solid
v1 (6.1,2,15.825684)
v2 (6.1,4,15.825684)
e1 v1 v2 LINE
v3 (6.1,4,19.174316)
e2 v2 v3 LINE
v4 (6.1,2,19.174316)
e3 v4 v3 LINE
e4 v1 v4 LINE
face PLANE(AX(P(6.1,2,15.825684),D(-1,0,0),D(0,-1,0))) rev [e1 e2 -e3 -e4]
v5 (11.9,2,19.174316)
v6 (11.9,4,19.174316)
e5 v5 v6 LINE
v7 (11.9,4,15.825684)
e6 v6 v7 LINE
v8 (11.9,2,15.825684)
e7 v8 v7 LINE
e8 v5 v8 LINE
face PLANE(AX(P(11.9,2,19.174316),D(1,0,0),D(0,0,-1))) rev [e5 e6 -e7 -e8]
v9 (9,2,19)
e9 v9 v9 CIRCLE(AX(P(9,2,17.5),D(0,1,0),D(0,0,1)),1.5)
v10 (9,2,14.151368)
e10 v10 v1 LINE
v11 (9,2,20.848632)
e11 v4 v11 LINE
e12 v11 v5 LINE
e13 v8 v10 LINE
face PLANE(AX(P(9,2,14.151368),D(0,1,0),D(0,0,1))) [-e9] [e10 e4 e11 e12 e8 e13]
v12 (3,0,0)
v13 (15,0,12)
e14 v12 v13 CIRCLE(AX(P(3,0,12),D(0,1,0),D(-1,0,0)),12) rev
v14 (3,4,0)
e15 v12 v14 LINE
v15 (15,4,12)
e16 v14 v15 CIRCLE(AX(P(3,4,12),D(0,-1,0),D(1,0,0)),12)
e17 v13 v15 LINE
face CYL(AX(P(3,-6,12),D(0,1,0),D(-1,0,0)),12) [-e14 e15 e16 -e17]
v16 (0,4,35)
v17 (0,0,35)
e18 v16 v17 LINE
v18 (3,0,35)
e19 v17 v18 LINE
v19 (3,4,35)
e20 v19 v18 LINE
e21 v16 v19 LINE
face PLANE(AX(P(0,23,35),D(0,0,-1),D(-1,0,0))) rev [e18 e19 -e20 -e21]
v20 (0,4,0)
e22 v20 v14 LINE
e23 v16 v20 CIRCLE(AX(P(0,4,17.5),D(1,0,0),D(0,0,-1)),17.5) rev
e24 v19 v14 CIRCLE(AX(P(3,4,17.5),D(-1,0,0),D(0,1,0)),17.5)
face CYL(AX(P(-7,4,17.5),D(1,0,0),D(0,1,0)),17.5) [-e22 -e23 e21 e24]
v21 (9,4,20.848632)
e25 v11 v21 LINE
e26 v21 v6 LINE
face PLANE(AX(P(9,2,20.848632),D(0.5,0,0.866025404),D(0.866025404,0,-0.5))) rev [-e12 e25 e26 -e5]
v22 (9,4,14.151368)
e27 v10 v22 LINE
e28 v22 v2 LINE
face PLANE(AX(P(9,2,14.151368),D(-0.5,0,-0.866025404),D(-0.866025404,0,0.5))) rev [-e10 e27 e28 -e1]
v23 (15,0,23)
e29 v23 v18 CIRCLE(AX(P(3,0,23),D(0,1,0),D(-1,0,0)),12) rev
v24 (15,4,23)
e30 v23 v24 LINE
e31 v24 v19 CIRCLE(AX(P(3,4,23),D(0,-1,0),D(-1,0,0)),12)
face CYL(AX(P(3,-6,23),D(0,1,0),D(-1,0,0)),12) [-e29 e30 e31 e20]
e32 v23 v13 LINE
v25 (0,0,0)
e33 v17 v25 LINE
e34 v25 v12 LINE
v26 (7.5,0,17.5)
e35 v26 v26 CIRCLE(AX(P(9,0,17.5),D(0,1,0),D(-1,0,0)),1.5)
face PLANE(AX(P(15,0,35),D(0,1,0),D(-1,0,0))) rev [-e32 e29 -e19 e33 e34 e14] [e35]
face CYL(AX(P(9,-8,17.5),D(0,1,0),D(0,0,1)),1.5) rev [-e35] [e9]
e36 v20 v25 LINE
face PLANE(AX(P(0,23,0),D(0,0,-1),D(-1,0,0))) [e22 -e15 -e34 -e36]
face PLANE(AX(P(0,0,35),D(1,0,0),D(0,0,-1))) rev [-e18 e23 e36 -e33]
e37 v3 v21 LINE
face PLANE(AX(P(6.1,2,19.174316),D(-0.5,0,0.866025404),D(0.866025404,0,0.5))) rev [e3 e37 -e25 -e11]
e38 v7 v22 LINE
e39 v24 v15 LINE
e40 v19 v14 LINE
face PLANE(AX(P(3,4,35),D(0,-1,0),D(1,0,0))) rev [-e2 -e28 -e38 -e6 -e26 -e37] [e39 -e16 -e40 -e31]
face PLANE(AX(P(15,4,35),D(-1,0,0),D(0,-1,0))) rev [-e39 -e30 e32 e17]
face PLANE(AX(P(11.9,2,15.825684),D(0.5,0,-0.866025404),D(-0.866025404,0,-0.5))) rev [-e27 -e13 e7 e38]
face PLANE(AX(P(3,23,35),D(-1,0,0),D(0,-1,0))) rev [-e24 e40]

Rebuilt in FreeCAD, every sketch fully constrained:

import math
import FreeCAD as App
import Part
import Sketcher
Q = App.Units.Quantity

doc = App.newDocument("Part")
body = doc.addObject("PartDesign::Body", "Body")

sketch1 = doc.addObject("Sketcher::SketchObject", "Sketch")
body.addObject(sketch1)
sketch1.AttachmentSupport = (doc.XY_Plane, [""])
sketch1.MapMode = "FlatFace"
sketch1.addGeometry(Part.LineSegment(App.Vector(3, 23, 0), App.Vector(0, 23, 0)), False)
sketch1.addGeometry(Part.LineSegment(App.Vector(0, 23, 0), App.Vector(0, 0, 0)), False)
sketch1.addGeometry(Part.LineSegment(App.Vector(0, 0, 0), App.Vector(15, 0, 0)), False)
sketch1.addGeometry(Part.LineSegment(App.Vector(15, 0, 0), App.Vector(15, 4, 0)), False)
sketch1.addGeometry(Part.LineSegment(App.Vector(15, 4, 0), App.Vector(3, 4, 0)), False)
sketch1.addGeometry(Part.LineSegment(App.Vector(3, 4, 0), App.Vector(3, 23, 0)), False)
sketch1.addConstraint(Sketcher.Constraint("Coincident", 0, 2, 1, 1))
sketch1.addConstraint(Sketcher.Constraint("Coincident", 1, 2, 2, 1))
sketch1.addConstraint(Sketcher.Constraint("Coincident", 2, 2, 3, 1))
sketch1.addConstraint(Sketcher.Constraint("Coincident", 3, 2, 4, 1))
sketch1.addConstraint(Sketcher.Constraint("Coincident", 4, 2, 5, 1))
sketch1.addConstraint(Sketcher.Constraint("Coincident", 5, 2, 0, 1))
sketch1.addConstraint(Sketcher.Constraint("Horizontal", 0))
sketch1.addConstraint(Sketcher.Constraint("Vertical", 1))
sketch1.addConstraint(Sketcher.Constraint("Horizontal", 2))
sketch1.addConstraint(Sketcher.Constraint("Vertical", 3))
sketch1.addConstraint(Sketcher.Constraint("Horizontal", 4))
sketch1.addConstraint(Sketcher.Constraint("Vertical", 5))
sketch1.addConstraint(Sketcher.Constraint("Coincident", 1, 2, -1, 1))
sketch1.addConstraint(Sketcher.Constraint("DistanceX", 0, 2, 0, 1, 3.0))
sketch1.addConstraint(Sketcher.Constraint("DistanceX", 2, 1, 2, 2, 15.0))
sketch1.addConstraint(Sketcher.Constraint("DistanceY", 1, 2, 1, 1, 23.0))
sketch1.addConstraint(Sketcher.Constraint("DistanceY", 3, 1, 3, 2, 4.0))
pad1 = doc.addObject("PartDesign::Pad", "Pad")
body.addObject(pad1)
pad1.Profile = sketch1
pad1.Length = 35

sketch2 = doc.addObject("Sketcher::SketchObject", "Sketch001")
body.addObject(sketch2)
sketch2.AttachmentSupport = (doc.XZ_Plane, [""])
sketch2.MapMode = "FlatFace"
sketch2.AttachmentOffset = App.Placement(App.Vector(0, 0, -4), App.Rotation())
sketch2.addGeometry(Part.LineSegment(App.Vector(9, 14.2, 0), App.Vector(6.1, 15.8, 0)), False)
sketch2.addGeometry(Part.LineSegment(App.Vector(6.1, 15.8, 0), App.Vector(6.1, 19.2, 0)), False)
sketch2.addGeometry(Part.LineSegment(App.Vector(6.1, 19.2, 0), App.Vector(9, 20.8, 0)), False)
sketch2.addGeometry(Part.LineSegment(App.Vector(9, 20.8, 0), App.Vector(11.9, 19.2, 0)), False)
sketch2.addGeometry(Part.LineSegment(App.Vector(11.9, 19.2, 0), App.Vector(11.9, 15.8, 0)), False)
sketch2.addGeometry(Part.LineSegment(App.Vector(11.9, 15.8, 0), App.Vector(9, 14.2, 0)), False)
sketch2.addConstraint(Sketcher.Constraint("Coincident", 0, 2, 1, 1))
sketch2.addConstraint(Sketcher.Constraint("Coincident", 1, 2, 2, 1))
sketch2.addConstraint(Sketcher.Constraint("Coincident", 2, 2, 3, 1))
sketch2.addConstraint(Sketcher.Constraint("Coincident", 3, 2, 4, 1))
sketch2.addConstraint(Sketcher.Constraint("Coincident", 4, 2, 5, 1))
sketch2.addConstraint(Sketcher.Constraint("Coincident", 5, 2, 0, 1))
sketch2.addConstraint(Sketcher.Constraint("Vertical", 1))
sketch2.addConstraint(Sketcher.Constraint("Vertical", 4))
sketch2.addConstraint(Sketcher.Constraint("Parallel", 0, 3))
sketch2.addConstraint(Sketcher.Constraint("Parallel", 2, 5))
sketch2.addConstraint(Sketcher.Constraint("Horizontal", 1, 2, 3, 2))
sketch2.addConstraint(Sketcher.Constraint("Horizontal", 0, 2, 4, 2))
sketch2.addConstraint(Sketcher.Constraint("Vertical", 2, 2, 5, 2))
sketch2.addConstraint(Sketcher.Constraint("Angle", 0, Q("150 deg")))
sketch2.addConstraint(Sketcher.Constraint("DistanceX", -1, 1, 2, 2, 9.0))
sketch2.addConstraint(Sketcher.Constraint("DistanceX", -1, 1, 0, 2, 6.1))
sketch2.addConstraint(Sketcher.Constraint("DistanceY", 1, 1, 1, 2, 3.348632))
sketch2.addConstraint(Sketcher.Constraint("DistanceY", -1, 1, 2, 2, 20.848632))
pocket1 = doc.addObject("PartDesign::Pocket", "Pocket")
body.addObject(pocket1)
pocket1.Profile = sketch2
pocket1.Length = 2
pocket1.Reversed = True

sketch3 = doc.addObject("Sketcher::SketchObject", "Sketch002")
body.addObject(sketch3)
sketch3.AttachmentSupport = (doc.XZ_Plane, [""])
sketch3.MapMode = "FlatFace"
sketch3.AttachmentOffset = App.Placement(App.Vector(0, 0, -2), App.Rotation())
sketch3.addGeometry(Part.Circle(App.Vector(9, 17.5, 0), App.Vector(0, 0, 1), 1.5), False)
sketch3.addConstraint(Sketcher.Constraint("Diameter", 0, 3.0))
sketch3.addConstraint(Sketcher.Constraint("DistanceX", -1, 1, 0, 3, 9.0))
sketch3.addConstraint(Sketcher.Constraint("DistanceY", -1, 1, 0, 3, 17.5))
pocket2 = doc.addObject("PartDesign::Pocket", "Pocket001")
body.addObject(pocket2)
pocket2.Profile = sketch3
pocket2.Length = 10
pocket2.Reversed = True

sketch4 = doc.addObject("Sketcher::SketchObject", "Sketch003")
body.addObject(sketch4)
sketch4.AttachmentSupport = (doc.XZ_Plane, [""])
sketch4.MapMode = "FlatFace"
sketch4.AttachmentOffset = App.Placement(App.Vector(0, 0, -4), App.Rotation())
sketch4.addGeometry(Part.LineSegment(App.Vector(15, 12, 0), App.Vector(15, 23, 0)), False)
sketch4.addGeometry(Part.ArcOfCircle(Part.Circle(App.Vector(3, 23, 0), App.Vector(0, 0, 1), 12), math.radians(0), math.radians(90)), False)
sketch4.addGeometry(Part.LineSegment(App.Vector(3, 35, 0), App.Vector(3, 39.9, 0)), False)
sketch4.addGeometry(Part.LineSegment(App.Vector(3, 39.9, 0), App.Vector(21.7, 36.8, 0)), False)
sketch4.addGeometry(Part.LineSegment(App.Vector(21.7, 36.8, 0), App.Vector(27.2, 6.9, 0)), False)
sketch4.addGeometry(Part.LineSegment(App.Vector(27.2, 6.9, 0), App.Vector(15.9, -7.8, 0)), False)
sketch4.addGeometry(Part.LineSegment(App.Vector(15.9, -7.8, 0), App.Vector(3, 0, 0)), False)
sketch4.addGeometry(Part.ArcOfCircle(Part.Circle(App.Vector(3, 12, 0), App.Vector(0, 0, 1), 12), math.radians(-90), math.radians(0)), False)
sketch4.addConstraint(Sketcher.Constraint("Tangent", 0, 2, 1, 1))
sketch4.addConstraint(Sketcher.Constraint("Coincident", 1, 2, 2, 1))
sketch4.addConstraint(Sketcher.Constraint("Coincident", 2, 2, 3, 1))
sketch4.addConstraint(Sketcher.Constraint("Coincident", 3, 2, 4, 1))
sketch4.addConstraint(Sketcher.Constraint("Coincident", 4, 2, 5, 1))
sketch4.addConstraint(Sketcher.Constraint("Coincident", 5, 2, 6, 1))
sketch4.addConstraint(Sketcher.Constraint("Coincident", 6, 2, 7, 1))
sketch4.addConstraint(Sketcher.Constraint("Tangent", 7, 2, 0, 1))
sketch4.addConstraint(Sketcher.Constraint("Vertical", 0))
sketch4.addConstraint(Sketcher.Constraint("Vertical", 2))
sketch4.addConstraint(Sketcher.Constraint("Equal", 1, 7))
sketch4.addConstraint(Sketcher.Constraint("PointOnObject", 6, 2, -1))
sketch4.addConstraint(Sketcher.Constraint("Vertical", 7, 3, 1, 2))
sketch4.addConstraint(Sketcher.Constraint("Vertical", 2, 2, 6, 2))
sketch4.addConstraint(Sketcher.Constraint("Radius", 1, 12.0))
sketch4.addConstraint(Sketcher.Constraint("DistanceY", 0, 1, 0, 2, 11.0))
sketch4.addConstraint(Sketcher.Constraint("DistanceX", -1, 1, 1, 3, 3.0))
sketch4.addConstraint(Sketcher.Constraint("DistanceY", 2, 1, 2, 2, 4.861701))
sketch4.addConstraint(Sketcher.Constraint("DistanceY", 3, 2, 2, 2, 3.013001))
sketch4.addConstraint(Sketcher.Constraint("DistanceX", -1, 1, 4, 2, 27.206798))
sketch4.addConstraint(Sketcher.Constraint("Distance", 3, 18.929638))
sketch4.addConstraint(Sketcher.Constraint("Distance", 4, 30.500265))
sketch4.addConstraint(Sketcher.Constraint("Distance", 5, 18.488574))
sketch4.addConstraint(Sketcher.Constraint("Distance", 6, 15.028264))
pocket3 = doc.addObject("PartDesign::Pocket", "Pocket002")
body.addObject(pocket3)
pocket3.Profile = sketch4
pocket3.Length = 10
pocket3.Reversed = True

sketch5 = doc.addObject("Sketcher::SketchObject", "Sketch004")
body.addObject(sketch5)
sketch5.AttachmentSupport = (doc.YZ_Plane, [""])
sketch5.MapMode = "FlatFace"
sketch5.AttachmentOffset = App.Placement(App.Vector(0, 0, 3), App.Rotation())
sketch5.addGeometry(Part.LineSegment(App.Vector(10.3, 43.5, 0), App.Vector(4, 35, 0)), False)
sketch5.addGeometry(Part.ArcOfCircle(Part.Circle(App.Vector(4, 17.5, 0), App.Vector(0, 0, 1), 17.5), math.radians(-90), math.radians(90)), False)
sketch5.addGeometry(Part.LineSegment(App.Vector(4, 0, 0), App.Vector(12, -6.4, 0)), False)
sketch5.addGeometry(Part.LineSegment(App.Vector(12, -6.4, 0), App.Vector(26.4, -8.8, 0)), False)
sketch5.addGeometry(Part.LineSegment(App.Vector(26.4, -8.8, 0), App.Vector(31.3, 37.3, 0)), False)
sketch5.addGeometry(Part.LineSegment(App.Vector(31.3, 37.3, 0), App.Vector(30.2, 37.6, 0)), False)
sketch5.addGeometry(Part.LineSegment(App.Vector(30.2, 37.6, 0), App.Vector(10.3, 43.5, 0)), False)
sketch5.addConstraint(Sketcher.Constraint("Coincident", 0, 2, 1, 2))
sketch5.addConstraint(Sketcher.Constraint("Coincident", 1, 1, 2, 1))
sketch5.addConstraint(Sketcher.Constraint("Coincident", 2, 2, 3, 1))
sketch5.addConstraint(Sketcher.Constraint("Coincident", 3, 2, 4, 1))
sketch5.addConstraint(Sketcher.Constraint("Coincident", 4, 2, 5, 1))
sketch5.addConstraint(Sketcher.Constraint("Coincident", 5, 2, 6, 1))
sketch5.addConstraint(Sketcher.Constraint("Coincident", 6, 2, 0, 1))
sketch5.addConstraint(Sketcher.Constraint("PointOnObject", 1, 1, -1))
sketch5.addConstraint(Sketcher.Constraint("Parallel", 5, 6))
sketch5.addConstraint(Sketcher.Constraint("Vertical", 1, 3, 0, 2))
sketch5.addConstraint(Sketcher.Constraint("Vertical", 0, 2, 1, 1))
sketch5.addConstraint(Sketcher.Constraint("Radius", 1, 17.5))
sketch5.addConstraint(Sketcher.Constraint("DistanceX", -1, 1, 1, 3, 4.0))
sketch5.addConstraint(Sketcher.Constraint("Distance", 2, 10.260149))
sketch5.addConstraint(Sketcher.Constraint("Distance", 6, 20.712331))
sketch5.addConstraint(Sketcher.Constraint("DistanceY", 2, 2, -1, 1, 6.381141))
sketch5.addConstraint(Sketcher.Constraint("DistanceX", -1, 1, 4, 2, 31.27068))
sketch5.addConstraint(Sketcher.Constraint("DistanceY", -1, 1, 4, 2, 37.331119))
sketch5.addConstraint(Sketcher.Constraint("DistanceX", -1, 1, 5, 2, 30.185339))
sketch5.addConstraint(Sketcher.Constraint("DistanceY", -1, 1, 5, 2, 37.648578))
sketch5.addConstraint(Sketcher.Constraint("DistanceX", 2, 2, 3, 2, 14.413419))
sketch5.addConstraint(Sketcher.Constraint("Distance", 3, 14.614457))
pocket4 = doc.addObject("PartDesign::Pocket", "Pocket003")
body.addObject(pocket4)
pocket4.Profile = sketch5
pocket4.Length = 10

doc.recompute()
